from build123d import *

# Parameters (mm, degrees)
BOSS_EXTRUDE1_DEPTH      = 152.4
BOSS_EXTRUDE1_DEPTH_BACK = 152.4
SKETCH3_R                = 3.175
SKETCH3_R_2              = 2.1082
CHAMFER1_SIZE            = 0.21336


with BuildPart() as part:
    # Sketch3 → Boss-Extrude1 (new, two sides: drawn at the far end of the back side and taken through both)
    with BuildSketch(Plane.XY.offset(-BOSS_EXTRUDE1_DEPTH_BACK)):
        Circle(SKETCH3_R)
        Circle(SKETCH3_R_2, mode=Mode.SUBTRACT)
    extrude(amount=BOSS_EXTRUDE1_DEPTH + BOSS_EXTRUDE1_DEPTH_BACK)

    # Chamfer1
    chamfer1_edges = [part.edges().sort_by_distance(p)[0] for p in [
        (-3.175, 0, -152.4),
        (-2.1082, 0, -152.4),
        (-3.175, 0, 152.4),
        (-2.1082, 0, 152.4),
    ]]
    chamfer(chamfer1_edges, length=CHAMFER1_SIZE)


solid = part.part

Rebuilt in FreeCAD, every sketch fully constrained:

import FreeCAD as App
import Part
import Sketcher
Q = App.Units.Quantity


def edges_at(feature, points):
    """Names of the edges that pass closest to the given points."""
    edges = feature.Shape.Edges
    near = lambda p: min(range(len(edges)), key=lambda i: edges[i].distToShape(Part.Vertex(*p))[0])
    return sorted({f"Edge{near(p) + 1}" for p in points})

doc = App.newDocument("Part")
params = doc.addObject("Spreadsheet::Sheet", "Params")
for row, (alias, value) in enumerate([
    ("sketch1_diameter", "0.25 in"),
    ("sketch1_diameter2", "0.166 in"),
    ("pad1_length", "6 in"),
    ("pad1_length2", "6 in"),
    ("chamfer_size", "0.0084 in"),
], start=1):
    params.set(f"A{row}", alias)
    params.set(f"B{row}", "=" + value)
    params.setAlias(f"B{row}", alias)

body = doc.addObject("PartDesign::Body", "Body")

# Sketch on XY plane
sketch1 = body.newObject("Sketcher::SketchObject", "Sketch")
sketch1.AttachmentSupport = (doc.getObject("XY_Plane"), [""])
sketch1.MapMode = "FlatFace"
sketch1.addGeometry([
    Part.Circle(App.Vector(0, 0, 0), App.Vector(0, 0, 1), 3.2),
    Part.Circle(App.Vector(0, 0, 0), App.Vector(0, 0, 1), 2.1),
], False)
sketch1.addConstraint([
    Sketcher.Constraint("Coincident", 0, 3, -1, 1),
    Sketcher.Constraint("Coincident", 1, 3, -1, 1),
    Sketcher.Constraint("Diameter", 0, Q("0.25 in")),
    Sketcher.Constraint("Diameter", 1, Q("0.166 in")),
])
sketch1.setExpression("Constraints[2]", "Params.sketch1_diameter")
sketch1.setExpression("Constraints[3]", "Params.sketch1_diameter2")
pad1 = body.newObject("PartDesign::Pad", "Pad")
pad1.Profile = sketch1
pad1.Type = "TwoLengths"
pad1.setExpression("Length", "Params.pad1_length")
pad1.setExpression("Length2", "Params.pad1_length2")
doc.recompute()

chamfer = body.newObject("PartDesign::Chamfer", "Chamfer")
chamfer.Base = (pad1, edges_at(pad1, [
    (-3.175, 0, -152.4),
    (-2.108, 0, -152.4),
    (-3.175, 0, 152.4),
    (-2.108, 0, 152.4),
]))
chamfer.setExpression("Size", "Params.chamfer_size")

doc.recompute()
